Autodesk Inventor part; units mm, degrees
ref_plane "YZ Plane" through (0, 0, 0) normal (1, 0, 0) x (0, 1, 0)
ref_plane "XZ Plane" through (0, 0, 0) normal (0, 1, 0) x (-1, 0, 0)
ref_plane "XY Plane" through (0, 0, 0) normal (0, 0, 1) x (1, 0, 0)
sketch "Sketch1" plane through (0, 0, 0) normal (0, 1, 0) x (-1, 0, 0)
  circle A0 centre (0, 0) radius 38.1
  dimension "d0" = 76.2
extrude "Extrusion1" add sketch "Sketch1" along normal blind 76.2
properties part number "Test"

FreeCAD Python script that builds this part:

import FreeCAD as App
import Part
import Sketcher

V = App.Vector
Q = App.Units.Quantity

doc = App.newDocument("Part")
body = doc.addObject("PartDesign::Body", "Body")

# Sketch on XZ plane
sketch1 = body.newObject("Sketcher::SketchObject", "Sketch")
sketch1.AttachmentSupport = (doc.getObject("XZ_Plane"), [""])
sketch1.MapMode = "FlatFace"
sketch1.addGeometry(Part.Circle(V(0, 0, 0), V(0, 0, 1), 38), False)
sketch1.addConstraint(Sketcher.Constraint("Coincident", 0, 3, -1, 1))
sketch1.addConstraint(Sketcher.Constraint("Diameter", 0, Q("3 in")))
pad1 = body.newObject("PartDesign::Pad", "Pad")
pad1.Profile = sketch1
pad1.Length = Q("3 in")
pad1.Reversed = True

doc.recompute()
